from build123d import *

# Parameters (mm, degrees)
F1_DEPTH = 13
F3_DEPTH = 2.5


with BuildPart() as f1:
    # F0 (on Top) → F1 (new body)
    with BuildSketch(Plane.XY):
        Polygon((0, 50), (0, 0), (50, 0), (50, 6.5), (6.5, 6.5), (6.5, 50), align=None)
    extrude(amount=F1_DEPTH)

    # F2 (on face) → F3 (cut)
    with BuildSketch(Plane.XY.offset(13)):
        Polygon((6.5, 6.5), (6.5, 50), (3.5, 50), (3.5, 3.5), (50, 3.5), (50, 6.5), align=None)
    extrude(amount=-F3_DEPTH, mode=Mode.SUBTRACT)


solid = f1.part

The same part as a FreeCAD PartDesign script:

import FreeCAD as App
import Part
import Sketcher

V = App.Vector
Q = App.Units.Quantity


def add_polygon(sketch, points):
    """Adds a closed chain of lines whose ends are joined by coincident constraints."""
    first, n = sketch.GeometryCount, len(points)
    for a, b in zip(points, points[1:] + points[:1]):
        sketch.addGeometry(Part.LineSegment(App.Vector(*a, 0), App.Vector(*b, 0)), False)
    for i in range(n):
        sketch.addConstraint(Sketcher.Constraint("Coincident", first + i, 2, first + (i + 1) % n, 1))

doc = App.newDocument("Part")
params = doc.addObject("Spreadsheet::Sheet", "Params")
for row, (alias, value) in enumerate([
    ("sketch1_width", "50 mm"),
    ("sketch1_width2", "43.5 mm"),
    ("pad1_length", "13 mm"),
    ("sketch2_width", "3 mm"),
    ("sketch2_width2", "46.5 mm"),
    ("pocket1_length", "2.5 mm"),
], start=1):
    params.set(f"A{row}", alias)
    params.set(f"B{row}", "=" + value)
    params.setAlias(f"B{row}", alias)

body = doc.addObject("PartDesign::Body", "Body")

sketch1 = doc.addObject("Sketcher::SketchObject", "Sketch")
body.addObject(sketch1)
sketch1.AttachmentSupport = (doc.XY_Plane, [""])
sketch1.MapMode = "FlatFace"
add_polygon(sketch1, [(0, 50), (0, 0), (50, 0), (50, 6), (6, 6), (6, 50)])
sketch1.addConstraint([
    Sketcher.Constraint("Vertical", 0),
    Sketcher.Constraint("Horizontal", 1),
    Sketcher.Constraint("Vertical", 2),
    Sketcher.Constraint("Horizontal", 3),
    Sketcher.Constraint("Vertical", 4),
    Sketcher.Constraint("Horizontal", 5),
    Sketcher.Constraint("Coincident", 0, 2, -1, 1),
    Sketcher.Constraint("Equal", 1, 0),
    Sketcher.Constraint("Equal", 5, 2),
    Sketcher.Constraint("DistanceX", 1, 1, 1, 2, Q("50 mm")),
    Sketcher.Constraint("DistanceX", 3, 2, 3, 1, Q("43.5 mm")),
])
sketch1.setExpression("Constraints[15]", "Params.sketch1_width")
sketch1.setExpression("Constraints[16]", "Params.sketch1_width2")
pad1 = doc.addObject("PartDesign::Pad", "Pad")
body.addObject(pad1)
pad1.Profile = sketch1
pad1.setExpression("Length", "Params.pad1_length")

sketch2 = doc.addObject("Sketcher::SketchObject", "Sketch001")
body.addObject(sketch2)
sketch2.AttachmentSupport = (doc.XY_Plane, [""])
sketch2.MapMode = "FlatFace"
sketch2.AttachmentOffset = App.Placement(V(0, 0, 13), App.Rotation())
add_polygon(sketch2, [(6.5, 6.5), (6.5, 50), (3.5, 50), (3.5, 3.5), (50, 3.5), (50, 6.5)])
sketch2.addConstraint([
    Sketcher.Constraint("Vertical", 0),
    Sketcher.Constraint("Horizontal", 1),
    Sketcher.Constraint("Vertical", 2),
    Sketcher.Constraint("Horizontal", 3),
    Sketcher.Constraint("Vertical", 4),
    Sketcher.Constraint("Horizontal", 5),
    Sketcher.Constraint("Equal", 5, 0),
    Sketcher.Constraint("Equal", 3, 2),
    Sketcher.Constraint("DistanceX", 1, 2, 1, 1, Q("3 mm")),
    Sketcher.Constraint("DistanceX", 3, 1, 3, 2, Q("46.5 mm")),
    Sketcher.Constraint("DistanceY", -1, 1, 0, 2, Q("50 mm")),
    Sketcher.Constraint("DistanceX", -1, 1, 3, 2, Q("50 mm")),
])
sketch2.setExpression("Constraints[14]", "Params.sketch2_width")
sketch2.setExpression("Constraints[15]", "Params.sketch2_width2")
pocket1 = doc.addObject("PartDesign::Pocket", "Pocket")
body.addObject(pocket1)
pocket1.Profile = sketch2
pocket1.setExpression("Length", "Params.pocket1_length")

doc.recompute()
